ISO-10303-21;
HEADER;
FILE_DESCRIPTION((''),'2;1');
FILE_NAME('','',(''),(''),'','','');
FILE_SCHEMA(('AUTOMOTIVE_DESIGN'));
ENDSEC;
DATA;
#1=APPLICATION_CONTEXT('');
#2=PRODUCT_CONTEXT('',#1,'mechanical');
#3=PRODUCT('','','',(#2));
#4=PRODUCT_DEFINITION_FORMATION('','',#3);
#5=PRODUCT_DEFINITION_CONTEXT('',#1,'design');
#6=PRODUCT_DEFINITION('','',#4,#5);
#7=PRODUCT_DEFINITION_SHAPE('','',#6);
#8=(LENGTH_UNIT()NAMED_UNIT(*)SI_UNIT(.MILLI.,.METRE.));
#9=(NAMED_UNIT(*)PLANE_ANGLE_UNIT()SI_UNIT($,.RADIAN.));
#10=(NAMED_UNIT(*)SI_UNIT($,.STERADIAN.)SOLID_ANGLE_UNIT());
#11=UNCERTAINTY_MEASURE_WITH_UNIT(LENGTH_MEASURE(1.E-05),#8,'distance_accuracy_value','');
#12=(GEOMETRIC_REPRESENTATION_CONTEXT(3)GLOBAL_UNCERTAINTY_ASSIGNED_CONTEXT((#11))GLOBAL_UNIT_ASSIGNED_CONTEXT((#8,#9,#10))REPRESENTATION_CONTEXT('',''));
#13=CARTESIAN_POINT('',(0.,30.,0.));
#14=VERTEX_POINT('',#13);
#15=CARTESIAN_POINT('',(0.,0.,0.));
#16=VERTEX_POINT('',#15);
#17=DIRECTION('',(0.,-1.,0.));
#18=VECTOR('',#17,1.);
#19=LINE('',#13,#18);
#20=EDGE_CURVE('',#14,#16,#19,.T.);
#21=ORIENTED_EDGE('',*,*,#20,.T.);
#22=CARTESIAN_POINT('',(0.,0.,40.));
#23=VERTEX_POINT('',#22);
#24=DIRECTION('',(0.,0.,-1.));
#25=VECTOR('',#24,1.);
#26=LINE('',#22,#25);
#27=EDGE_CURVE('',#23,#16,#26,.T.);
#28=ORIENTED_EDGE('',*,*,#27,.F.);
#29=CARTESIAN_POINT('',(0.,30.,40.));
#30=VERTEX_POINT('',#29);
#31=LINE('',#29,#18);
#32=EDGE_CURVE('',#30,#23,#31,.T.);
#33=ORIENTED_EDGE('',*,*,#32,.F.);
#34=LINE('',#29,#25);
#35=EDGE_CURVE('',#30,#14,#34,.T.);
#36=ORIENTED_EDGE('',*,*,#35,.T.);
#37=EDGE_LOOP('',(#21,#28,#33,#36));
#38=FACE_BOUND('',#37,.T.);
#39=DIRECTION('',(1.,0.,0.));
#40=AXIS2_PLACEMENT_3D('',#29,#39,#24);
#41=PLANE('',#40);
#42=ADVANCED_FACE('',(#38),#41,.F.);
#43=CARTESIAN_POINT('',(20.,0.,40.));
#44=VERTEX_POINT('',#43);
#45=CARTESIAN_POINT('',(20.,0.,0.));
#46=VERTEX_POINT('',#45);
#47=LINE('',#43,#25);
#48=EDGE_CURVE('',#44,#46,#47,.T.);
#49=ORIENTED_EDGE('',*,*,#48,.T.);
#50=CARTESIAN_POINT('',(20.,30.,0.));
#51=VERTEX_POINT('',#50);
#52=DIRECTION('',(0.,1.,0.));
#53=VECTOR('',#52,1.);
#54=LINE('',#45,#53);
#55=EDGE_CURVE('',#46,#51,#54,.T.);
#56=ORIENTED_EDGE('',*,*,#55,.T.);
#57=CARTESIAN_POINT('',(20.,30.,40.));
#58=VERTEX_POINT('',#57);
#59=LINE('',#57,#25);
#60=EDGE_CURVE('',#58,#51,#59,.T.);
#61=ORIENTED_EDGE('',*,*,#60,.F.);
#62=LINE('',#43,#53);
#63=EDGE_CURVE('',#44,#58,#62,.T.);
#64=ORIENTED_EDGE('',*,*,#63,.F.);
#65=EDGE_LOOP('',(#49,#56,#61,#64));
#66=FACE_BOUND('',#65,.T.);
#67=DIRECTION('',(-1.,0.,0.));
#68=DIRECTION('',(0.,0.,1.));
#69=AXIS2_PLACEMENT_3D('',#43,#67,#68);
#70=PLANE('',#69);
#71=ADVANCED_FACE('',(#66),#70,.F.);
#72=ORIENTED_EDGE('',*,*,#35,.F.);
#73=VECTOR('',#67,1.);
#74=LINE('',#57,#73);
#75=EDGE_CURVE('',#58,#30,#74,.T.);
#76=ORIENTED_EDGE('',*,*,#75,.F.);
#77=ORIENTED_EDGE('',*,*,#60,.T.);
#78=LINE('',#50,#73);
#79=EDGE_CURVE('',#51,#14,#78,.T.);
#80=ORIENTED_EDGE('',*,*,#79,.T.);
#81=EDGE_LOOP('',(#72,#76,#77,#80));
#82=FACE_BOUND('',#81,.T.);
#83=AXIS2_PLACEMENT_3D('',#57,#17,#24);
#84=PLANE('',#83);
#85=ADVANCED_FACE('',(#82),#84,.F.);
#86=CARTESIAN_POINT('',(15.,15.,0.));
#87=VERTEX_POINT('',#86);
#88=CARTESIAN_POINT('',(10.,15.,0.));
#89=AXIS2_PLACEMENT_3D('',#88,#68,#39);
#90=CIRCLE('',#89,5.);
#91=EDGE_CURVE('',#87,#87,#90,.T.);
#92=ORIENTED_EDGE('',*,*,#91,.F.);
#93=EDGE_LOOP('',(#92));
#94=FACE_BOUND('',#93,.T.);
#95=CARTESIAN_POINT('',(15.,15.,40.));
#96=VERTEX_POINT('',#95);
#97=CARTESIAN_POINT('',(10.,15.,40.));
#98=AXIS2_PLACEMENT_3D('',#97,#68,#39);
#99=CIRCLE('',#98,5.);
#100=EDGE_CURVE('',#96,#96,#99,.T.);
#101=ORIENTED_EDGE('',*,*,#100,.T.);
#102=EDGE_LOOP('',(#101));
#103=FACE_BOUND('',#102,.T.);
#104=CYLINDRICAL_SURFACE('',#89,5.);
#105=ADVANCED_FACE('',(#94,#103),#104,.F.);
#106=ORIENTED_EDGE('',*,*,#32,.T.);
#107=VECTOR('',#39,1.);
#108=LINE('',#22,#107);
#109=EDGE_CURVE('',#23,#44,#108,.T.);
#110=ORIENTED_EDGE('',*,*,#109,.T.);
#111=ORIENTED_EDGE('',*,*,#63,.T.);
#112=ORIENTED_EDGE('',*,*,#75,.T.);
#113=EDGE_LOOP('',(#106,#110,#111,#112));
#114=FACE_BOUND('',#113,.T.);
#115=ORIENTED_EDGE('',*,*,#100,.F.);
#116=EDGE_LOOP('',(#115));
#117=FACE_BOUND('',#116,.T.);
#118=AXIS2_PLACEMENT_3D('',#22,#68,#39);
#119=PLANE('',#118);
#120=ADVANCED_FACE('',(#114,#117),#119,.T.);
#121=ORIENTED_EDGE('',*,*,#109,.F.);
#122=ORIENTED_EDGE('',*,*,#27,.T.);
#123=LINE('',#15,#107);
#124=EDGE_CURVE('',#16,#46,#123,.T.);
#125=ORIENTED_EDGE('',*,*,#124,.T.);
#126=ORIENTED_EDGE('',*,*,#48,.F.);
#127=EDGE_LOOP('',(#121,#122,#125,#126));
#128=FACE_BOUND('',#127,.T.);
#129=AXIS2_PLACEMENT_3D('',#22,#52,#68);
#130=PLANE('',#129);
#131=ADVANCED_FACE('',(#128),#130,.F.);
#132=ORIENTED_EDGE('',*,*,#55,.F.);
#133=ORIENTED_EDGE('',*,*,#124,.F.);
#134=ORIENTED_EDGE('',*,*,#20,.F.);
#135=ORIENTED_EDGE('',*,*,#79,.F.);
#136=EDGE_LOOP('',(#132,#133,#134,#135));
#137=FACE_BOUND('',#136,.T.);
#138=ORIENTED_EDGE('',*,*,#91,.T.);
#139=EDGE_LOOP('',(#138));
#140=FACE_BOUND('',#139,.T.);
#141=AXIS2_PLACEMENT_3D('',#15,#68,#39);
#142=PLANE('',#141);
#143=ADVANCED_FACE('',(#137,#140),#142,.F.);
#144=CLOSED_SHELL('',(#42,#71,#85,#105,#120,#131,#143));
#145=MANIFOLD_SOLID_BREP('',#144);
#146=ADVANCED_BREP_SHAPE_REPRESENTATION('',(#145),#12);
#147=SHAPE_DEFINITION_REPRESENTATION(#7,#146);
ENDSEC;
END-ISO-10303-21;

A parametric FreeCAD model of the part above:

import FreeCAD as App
import Part
import Sketcher
from FreeCAD import Vector

doc = App.newDocument("Part")
body = doc.addObject("PartDesign::Body", "Body")

sketch1 = body.newObject("Sketcher::SketchObject", "Sketch")
sketch1.AttachmentSupport = (doc.getObject("XY_Plane"), [""])
sketch1.MapMode = "FlatFace"
sketch1.addGeometry(Part.LineSegment(Vector(0, 30, 0), Vector(0, 0, 0)), False)
sketch1.addGeometry(Part.LineSegment(Vector(0, 0, 0), Vector(20, 0, 0)), False)
sketch1.addGeometry(Part.LineSegment(Vector(20, 0, 0), Vector(20, 30, 0)), False)
sketch1.addGeometry(Part.LineSegment(Vector(20, 30, 0), Vector(0, 30, 0)), False)
sketch1.addConstraint(Sketcher.Constraint("Coincident", 0, 2, 1, 1))
sketch1.addConstraint(Sketcher.Constraint("Coincident", 1, 2, 2, 1))
sketch1.addConstraint(Sketcher.Constraint("Coincident", 2, 2, 3, 1))
sketch1.addConstraint(Sketcher.Constraint("Coincident", 3, 2, 0, 1))
sketch1.addConstraint(Sketcher.Constraint("Vertical", 0))
sketch1.addConstraint(Sketcher.Constraint("Horizontal", 1))
sketch1.addConstraint(Sketcher.Constraint("Vertical", 2))
sketch1.addConstraint(Sketcher.Constraint("Horizontal", 3))
sketch1.addConstraint(Sketcher.Constraint("Coincident", 0, 2, -1, 1))
sketch1.addConstraint(Sketcher.Constraint("DistanceX", 1, 1, 1, 2, 20.0))
sketch1.addConstraint(Sketcher.Constraint("DistanceY", 0, 2, 0, 1, 30.0))
pad1 = body.newObject("PartDesign::Pad", "Pad")
pad1.Profile = sketch1
pad1.Length = 40

sketch2 = body.newObject("Sketcher::SketchObject", "Sketch001")
sketch2.AttachmentSupport = (doc.getObject("XY_Plane"), [""])
sketch2.MapMode = "FlatFace"
sketch2.AttachmentOffset = App.Placement(Vector(0, 0, 40), App.Rotation())
sketch2.addGeometry(Part.Circle(Vector(10, 15, 0), Vector(0, 0, 1), 5), False)
sketch2.addConstraint(Sketcher.Constraint("Diameter", 0, 10.0))
sketch2.addConstraint(Sketcher.Constraint("DistanceX", -1, 1, 0, 3, 10.0))
sketch2.addConstraint(Sketcher.Constraint("DistanceY", -1, 1, 0, 3, 15.0))
pocket1 = body.newObject("PartDesign::Pocket", "Pocket")
pocket1.Profile = sketch2
pocket1.Type = "ThroughAll"

doc.recompute()
